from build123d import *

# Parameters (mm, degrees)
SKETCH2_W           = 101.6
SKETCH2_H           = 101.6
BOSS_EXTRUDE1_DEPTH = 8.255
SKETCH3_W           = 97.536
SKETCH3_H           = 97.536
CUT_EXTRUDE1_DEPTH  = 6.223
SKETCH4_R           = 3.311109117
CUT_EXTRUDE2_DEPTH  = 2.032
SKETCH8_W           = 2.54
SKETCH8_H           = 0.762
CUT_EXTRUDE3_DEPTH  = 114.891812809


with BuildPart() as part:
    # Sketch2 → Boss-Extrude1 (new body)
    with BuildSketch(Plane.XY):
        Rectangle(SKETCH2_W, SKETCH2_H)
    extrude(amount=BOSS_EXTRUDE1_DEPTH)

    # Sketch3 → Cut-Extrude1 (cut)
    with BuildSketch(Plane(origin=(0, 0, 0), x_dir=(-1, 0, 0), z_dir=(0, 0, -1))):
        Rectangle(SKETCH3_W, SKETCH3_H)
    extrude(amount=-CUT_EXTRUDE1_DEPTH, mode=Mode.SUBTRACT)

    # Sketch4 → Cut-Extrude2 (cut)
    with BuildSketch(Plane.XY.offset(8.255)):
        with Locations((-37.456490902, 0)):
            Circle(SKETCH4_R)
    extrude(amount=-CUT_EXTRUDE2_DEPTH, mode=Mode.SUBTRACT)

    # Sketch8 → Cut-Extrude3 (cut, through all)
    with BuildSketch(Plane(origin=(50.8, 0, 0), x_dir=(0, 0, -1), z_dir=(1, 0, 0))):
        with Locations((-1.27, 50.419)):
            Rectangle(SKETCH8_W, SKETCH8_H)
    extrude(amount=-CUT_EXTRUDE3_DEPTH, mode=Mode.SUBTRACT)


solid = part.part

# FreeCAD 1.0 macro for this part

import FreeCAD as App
import Part
import Sketcher
from FreeCAD import Vector
Q = App.Units.Quantity


def add_polygon(sketch, points):
    """Adds a closed chain of lines whose ends are joined by coincident constraints."""
    first, n = sketch.GeometryCount, len(points)
    for a, b in zip(points, points[1:] + points[:1]):
        sketch.addGeometry(Part.LineSegment(App.Vector(*a, 0), App.Vector(*b, 0)), False)
    for i in range(n):
        sketch.addConstraint(Sketcher.Constraint("Coincident", first + i, 2, first + (i + 1) % n, 1))

doc = App.newDocument("Part")
params = doc.addObject("Spreadsheet::Sheet", "Params")
for row, (alias, value) in enumerate([
    ("sketch1_width", "4 in"),
    ("pad1_length", "0.325 in"),
    ("sketch2_width", "3.84 in"),
    ("pocket1_length", "0.245 in"),
    ("pocket2_length", "0.08 in"),
    ("sketch4_height", "0.1 in"),
    ("sketch4_width", "0.03 in"),
], start=1):
    params.set(f"A{row}", alias)
    params.set(f"B{row}", "=" + value)
    params.setAlias(f"B{row}", alias)

body = doc.addObject("PartDesign::Body", "Body")

# Sketch on XY plane
sketch1 = doc.addObject("Sketcher::SketchObject", "Sketch")
body.addObject(sketch1)
sketch1.AttachmentSupport = (doc.XY_Plane, [""])
sketch1.MapMode = "FlatFace"
add_polygon(sketch1, [(-51, 51), (-51, -51), (51, -51), (51, 51)])  # lines 0-3
sketch1.addConstraint([
    Sketcher.Constraint("Vertical", 0),
    Sketcher.Constraint("Horizontal", 1),
    Sketcher.Constraint("Vertical", 2),
    Sketcher.Constraint("Horizontal", 3),
    Sketcher.Constraint("Symmetric", 0, 2, 2, 2, -1, 1),
    Sketcher.Constraint("Equal", 3, 0),
    Sketcher.Constraint("DistanceX", 1, 1, 1, 2, Q("4 in")),
])
sketch1.setExpression("Constraints[10]", "Params.sketch1_width")
pad1 = doc.addObject("PartDesign::Pad", "Pad")
body.addObject(pad1)
pad1.Profile = sketch1
pad1.setExpression("Length", "Params.pad1_length")

# Sketch on XY plane
sketch2 = doc.addObject("Sketcher::SketchObject", "Sketch001")
body.addObject(sketch2)
sketch2.AttachmentSupport = (doc.XY_Plane, [""])
sketch2.MapMode = "FlatFace"
add_polygon(sketch2, [(49, 49), (49, -49), (-49, -49), (-49, 49)])  # lines 0-3
sketch2.addConstraint([
    Sketcher.Constraint("Vertical", 0),
    Sketcher.Constraint("Horizontal", 1),
    Sketcher.Constraint("Vertical", 2),
    Sketcher.Constraint("Horizontal", 3),
    Sketcher.Constraint("Symmetric", 0, 2, 2, 2, -1, 1),
    Sketcher.Constraint("Equal", 3, 0),
    Sketcher.Constraint("DistanceX", 1, 2, 1, 1, Q("3.84 in")),
])
sketch2.setExpression("Constraints[10]", "Params.sketch2_width")
pocket1 = doc.addObject("PartDesign::Pocket", "Pocket")
body.addObject(pocket1)
pocket1.Profile = sketch2
pocket1.setExpression("Length", "Params.pocket1_length")
pocket1.Reversed = True

# Sketch on XY plane
sketch3 = doc.addObject("Sketcher::SketchObject", "Sketch002")
body.addObject(sketch3)
sketch3.AttachmentSupport = (doc.XY_Plane, [""])
sketch3.MapMode = "FlatFace"
sketch3.AttachmentOffset = App.Placement(Vector(0, 0, 0.325 * 25.4), App.Rotation())
sketch3.addGeometry(Part.Circle(Vector(-37.5, 0, 0), Vector(0, 0, 1), 3.3), False)
sketch3.addConstraint([
    Sketcher.Constraint("PointOnObject", 0, 3, -1),
    Sketcher.Constraint("Diameter", 0, 6.622218),
    Sketcher.Constraint("DistanceX", 0, 3, -1, 1, 37.456491),
])
pocket2 = doc.addObject("PartDesign::Pocket", "Pocket001")
body.addObject(pocket2)
pocket2.Profile = sketch3
pocket2.setExpression("Length", "Params.pocket2_length")

# Sketch on YZ plane
sketch4 = doc.addObject("Sketcher::SketchObject", "Sketch003")
body.addObject(sketch4)
sketch4.AttachmentSupport = (doc.YZ_Plane, [""])
sketch4.MapMode = "FlatFace"
sketch4.AttachmentOffset = App.Placement(Vector(0, 0, 2 * 25.4), App.Rotation())
add_polygon(sketch4, [(50.8, 2.5), (50, 2.5), (50, 0), (50.8, 0)])  # lines 0-3
sketch4.addConstraint([
    Sketcher.Constraint("Horizontal", 0),
    Sketcher.Constraint("Vertical", 1),
    Sketcher.Constraint("Horizontal", 2),
    Sketcher.Constraint("Vertical", 3),
    Sketcher.Constraint("PointOnObject", 1, 2, -1),
    Sketcher.Constraint("DistanceY", 1, 2, 1, 1, Q("0.1 in")),
    Sketcher.Constraint("DistanceX", -1, 1, 2, 2, Q("2 in")),
    Sketcher.Constraint("DistanceX", 0, 2, 0, 1, Q("0.03 in")),
])
sketch4.setExpression("Constraints[9]", "Params.sketch4_height")
sketch4.setExpression("Constraints[11]", "Params.sketch4_width")
pocket3 = doc.addObject("PartDesign::Pocket", "Pocket002")
body.addObject(pocket3)
pocket3.Profile = sketch4
pocket3.Type = "ThroughAll"

doc.recompute()
